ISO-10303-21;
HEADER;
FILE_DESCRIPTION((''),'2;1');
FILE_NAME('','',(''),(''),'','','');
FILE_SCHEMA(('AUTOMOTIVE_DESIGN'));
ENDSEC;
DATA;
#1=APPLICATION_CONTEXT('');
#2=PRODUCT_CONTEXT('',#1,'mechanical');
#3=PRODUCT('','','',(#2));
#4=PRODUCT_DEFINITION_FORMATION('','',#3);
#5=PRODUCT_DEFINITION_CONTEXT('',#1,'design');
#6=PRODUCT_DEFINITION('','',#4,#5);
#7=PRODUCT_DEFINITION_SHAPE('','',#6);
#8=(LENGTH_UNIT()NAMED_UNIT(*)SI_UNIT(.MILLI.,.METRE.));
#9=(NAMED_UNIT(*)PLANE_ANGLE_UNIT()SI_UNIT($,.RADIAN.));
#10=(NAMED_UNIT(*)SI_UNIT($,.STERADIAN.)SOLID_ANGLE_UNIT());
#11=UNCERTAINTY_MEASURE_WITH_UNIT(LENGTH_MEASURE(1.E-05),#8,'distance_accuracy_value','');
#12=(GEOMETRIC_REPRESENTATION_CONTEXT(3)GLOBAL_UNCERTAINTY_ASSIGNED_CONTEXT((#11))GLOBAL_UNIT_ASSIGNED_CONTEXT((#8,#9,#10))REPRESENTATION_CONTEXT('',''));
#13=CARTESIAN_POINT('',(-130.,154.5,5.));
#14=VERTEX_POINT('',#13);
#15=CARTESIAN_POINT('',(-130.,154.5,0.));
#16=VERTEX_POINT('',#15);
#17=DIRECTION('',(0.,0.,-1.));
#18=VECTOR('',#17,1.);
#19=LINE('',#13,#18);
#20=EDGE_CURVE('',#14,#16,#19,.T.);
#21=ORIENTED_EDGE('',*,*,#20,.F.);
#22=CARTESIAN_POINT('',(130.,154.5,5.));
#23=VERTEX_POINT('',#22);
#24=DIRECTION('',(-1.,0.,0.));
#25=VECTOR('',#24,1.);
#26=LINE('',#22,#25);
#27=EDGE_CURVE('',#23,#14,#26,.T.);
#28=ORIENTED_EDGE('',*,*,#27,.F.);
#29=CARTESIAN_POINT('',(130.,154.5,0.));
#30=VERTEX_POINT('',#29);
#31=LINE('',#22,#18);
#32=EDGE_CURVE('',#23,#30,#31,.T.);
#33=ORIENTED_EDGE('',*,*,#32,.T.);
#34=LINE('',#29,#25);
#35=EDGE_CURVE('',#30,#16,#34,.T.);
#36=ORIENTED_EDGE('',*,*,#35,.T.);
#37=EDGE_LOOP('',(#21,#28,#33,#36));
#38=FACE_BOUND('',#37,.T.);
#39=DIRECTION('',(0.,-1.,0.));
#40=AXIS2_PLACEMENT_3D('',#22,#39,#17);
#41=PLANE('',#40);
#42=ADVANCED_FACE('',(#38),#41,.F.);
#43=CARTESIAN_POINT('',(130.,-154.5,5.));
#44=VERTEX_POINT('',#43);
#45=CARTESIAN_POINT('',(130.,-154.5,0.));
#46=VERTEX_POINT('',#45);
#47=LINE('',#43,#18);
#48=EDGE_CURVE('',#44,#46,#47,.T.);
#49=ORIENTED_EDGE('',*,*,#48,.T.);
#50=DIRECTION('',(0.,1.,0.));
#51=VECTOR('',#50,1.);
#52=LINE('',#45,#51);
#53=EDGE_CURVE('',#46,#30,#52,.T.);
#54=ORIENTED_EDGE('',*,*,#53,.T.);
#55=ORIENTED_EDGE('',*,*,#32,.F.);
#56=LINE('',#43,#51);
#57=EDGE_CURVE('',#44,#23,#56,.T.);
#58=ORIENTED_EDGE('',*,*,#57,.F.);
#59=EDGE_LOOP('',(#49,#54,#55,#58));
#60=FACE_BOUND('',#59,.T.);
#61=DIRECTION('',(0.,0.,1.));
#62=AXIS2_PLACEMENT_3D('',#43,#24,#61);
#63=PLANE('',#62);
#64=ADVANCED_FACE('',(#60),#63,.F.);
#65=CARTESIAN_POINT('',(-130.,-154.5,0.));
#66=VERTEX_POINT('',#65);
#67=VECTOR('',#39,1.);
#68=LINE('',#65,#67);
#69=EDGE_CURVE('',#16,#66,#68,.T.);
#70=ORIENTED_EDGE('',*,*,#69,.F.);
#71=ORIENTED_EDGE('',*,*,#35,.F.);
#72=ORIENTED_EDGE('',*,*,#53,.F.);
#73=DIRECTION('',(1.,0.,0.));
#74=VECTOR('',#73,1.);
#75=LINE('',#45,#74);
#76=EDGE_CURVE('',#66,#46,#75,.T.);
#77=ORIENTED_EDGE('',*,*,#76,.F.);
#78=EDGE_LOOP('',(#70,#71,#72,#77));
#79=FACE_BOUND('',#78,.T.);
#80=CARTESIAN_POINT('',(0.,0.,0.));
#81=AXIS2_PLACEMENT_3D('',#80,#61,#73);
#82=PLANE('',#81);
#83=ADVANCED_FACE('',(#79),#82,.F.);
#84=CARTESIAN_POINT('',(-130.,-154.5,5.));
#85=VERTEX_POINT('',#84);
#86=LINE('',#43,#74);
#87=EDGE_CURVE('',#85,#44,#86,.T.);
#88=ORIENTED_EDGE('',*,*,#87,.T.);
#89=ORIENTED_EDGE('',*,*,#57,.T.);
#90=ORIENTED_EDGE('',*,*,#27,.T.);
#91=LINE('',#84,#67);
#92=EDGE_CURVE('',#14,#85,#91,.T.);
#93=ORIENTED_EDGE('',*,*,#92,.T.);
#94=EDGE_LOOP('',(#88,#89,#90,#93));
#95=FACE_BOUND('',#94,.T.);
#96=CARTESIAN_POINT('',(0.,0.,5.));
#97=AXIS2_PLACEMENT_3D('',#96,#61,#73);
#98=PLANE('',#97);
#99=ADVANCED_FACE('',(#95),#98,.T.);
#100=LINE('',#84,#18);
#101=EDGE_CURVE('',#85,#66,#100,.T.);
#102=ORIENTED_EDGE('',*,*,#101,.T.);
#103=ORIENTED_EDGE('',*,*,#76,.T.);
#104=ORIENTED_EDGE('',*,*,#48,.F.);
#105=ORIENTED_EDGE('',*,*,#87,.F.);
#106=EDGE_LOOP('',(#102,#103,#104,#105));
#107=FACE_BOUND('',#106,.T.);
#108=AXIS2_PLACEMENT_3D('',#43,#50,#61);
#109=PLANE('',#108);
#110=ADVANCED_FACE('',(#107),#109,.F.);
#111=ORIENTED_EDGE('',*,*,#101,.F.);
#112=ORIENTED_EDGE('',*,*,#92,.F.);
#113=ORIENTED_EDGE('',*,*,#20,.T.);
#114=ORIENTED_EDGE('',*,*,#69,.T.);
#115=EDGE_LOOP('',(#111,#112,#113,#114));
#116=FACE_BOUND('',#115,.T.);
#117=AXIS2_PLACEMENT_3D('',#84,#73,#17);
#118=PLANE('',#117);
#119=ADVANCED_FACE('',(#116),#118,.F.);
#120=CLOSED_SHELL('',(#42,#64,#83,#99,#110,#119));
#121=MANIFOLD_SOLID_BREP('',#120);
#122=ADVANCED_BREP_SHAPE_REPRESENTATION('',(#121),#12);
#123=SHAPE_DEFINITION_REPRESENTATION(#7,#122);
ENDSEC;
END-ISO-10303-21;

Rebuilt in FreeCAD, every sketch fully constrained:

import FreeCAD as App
import Part
import Sketcher
Q = App.Units.Quantity

doc = App.newDocument("Part")
body = doc.addObject("PartDesign::Body", "Body")

sketch1 = body.newObject("Sketcher::SketchObject", "Sketch")
sketch1.AttachmentSupport = (doc.getObject("XY_Plane"), [""])
sketch1.MapMode = "FlatFace"
sketch1.addGeometry([
    Part.LineSegment(App.Vector(-130, 154, 0), App.Vector(-130, -154, 0)),
    Part.LineSegment(App.Vector(-130, -154, 0), App.Vector(130, -154, 0)),
    Part.LineSegment(App.Vector(130, -154, 0), App.Vector(130, 154, 0)),
    Part.LineSegment(App.Vector(130, 154, 0), App.Vector(-130, 154, 0)),
], False)
sketch1.addConstraint([
    Sketcher.Constraint("Coincident", 0, 2, 1, 1),
    Sketcher.Constraint("Coincident", 1, 2, 2, 1),
    Sketcher.Constraint("Coincident", 2, 2, 3, 1),
    Sketcher.Constraint("Coincident", 3, 2, 0, 1),
    Sketcher.Constraint("Vertical", 0),
    Sketcher.Constraint("Horizontal", 1),
    Sketcher.Constraint("Vertical", 2),
    Sketcher.Constraint("Horizontal", 3),
    Sketcher.Constraint("Symmetric", 0, 2, 2, 2, -1, 1),
    Sketcher.Constraint("DistanceX", 1, 1, 1, 2, Q("260 mm")),
    Sketcher.Constraint("DistanceY", 0, 2, 0, 1, Q("309 mm")),
])
pad1 = body.newObject("PartDesign::Pad", "Pad")
pad1.Profile = sketch1
pad1.Length = 5

doc.recompute()
